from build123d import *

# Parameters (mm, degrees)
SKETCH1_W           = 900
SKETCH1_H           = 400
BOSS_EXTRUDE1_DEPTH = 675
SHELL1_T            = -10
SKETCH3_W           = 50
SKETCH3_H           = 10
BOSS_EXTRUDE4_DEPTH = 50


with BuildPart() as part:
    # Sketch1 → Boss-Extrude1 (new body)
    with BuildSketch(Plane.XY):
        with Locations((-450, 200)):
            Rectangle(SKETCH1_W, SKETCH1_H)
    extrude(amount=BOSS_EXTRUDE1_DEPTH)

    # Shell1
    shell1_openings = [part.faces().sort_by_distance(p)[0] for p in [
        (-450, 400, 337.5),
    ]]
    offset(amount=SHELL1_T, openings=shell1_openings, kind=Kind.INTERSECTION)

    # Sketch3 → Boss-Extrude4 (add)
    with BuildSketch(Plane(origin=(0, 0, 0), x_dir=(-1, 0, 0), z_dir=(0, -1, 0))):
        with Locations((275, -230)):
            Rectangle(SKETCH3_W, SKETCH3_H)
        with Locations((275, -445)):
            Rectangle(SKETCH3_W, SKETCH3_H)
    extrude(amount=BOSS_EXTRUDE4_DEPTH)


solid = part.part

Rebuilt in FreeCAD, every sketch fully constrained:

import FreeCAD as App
import Part
import Sketcher

V = App.Vector
Q = App.Units.Quantity


def faces_at(feature, points):
    """Names of the faces that lie closest to the given points."""
    faces = feature.Shape.Faces
    near = lambda p: min(range(len(faces)), key=lambda i: faces[i].distToShape(Part.Vertex(*p))[0])
    return sorted({f"Face{near(p) + 1}" for p in points})

doc = App.newDocument("Part")
body = doc.addObject("PartDesign::Body", "Body")

sketch1 = body.newObject("Sketcher::SketchObject", "Sketch")
sketch1.AttachmentSupport = (doc.getObject("XY_Plane"), [""])
sketch1.MapMode = "FlatFace"
sketch1.addGeometry(Part.LineSegment(V(-900, 400, 0), V(-900, 0, 0)), False)
sketch1.addGeometry(Part.LineSegment(V(-900, 0, 0), V(0, 0, 0)), False)
sketch1.addGeometry(Part.LineSegment(V(0, 0, 0), V(0, 400, 0)), False)
sketch1.addGeometry(Part.LineSegment(V(0, 400, 0), V(-900, 400, 0)), False)
sketch1.addConstraint(Sketcher.Constraint("Coincident", 0, 2, 1, 1))
sketch1.addConstraint(Sketcher.Constraint("Coincident", 1, 2, 2, 1))
sketch1.addConstraint(Sketcher.Constraint("Coincident", 2, 2, 3, 1))
sketch1.addConstraint(Sketcher.Constraint("Coincident", 3, 2, 0, 1))
sketch1.addConstraint(Sketcher.Constraint("Vertical", 0))
sketch1.addConstraint(Sketcher.Constraint("Horizontal", 1))
sketch1.addConstraint(Sketcher.Constraint("Vertical", 2))
sketch1.addConstraint(Sketcher.Constraint("Horizontal", 3))
sketch1.addConstraint(Sketcher.Constraint("Coincident", 1, 2, -1, 1))
sketch1.addConstraint(Sketcher.Constraint("DistanceX", 1, 1, 1, 2, Q("900 mm")))
sketch1.addConstraint(Sketcher.Constraint("DistanceY", 0, 2, 0, 1, Q("400 mm")))
pad1 = body.newObject("PartDesign::Pad", "Pad")
pad1.Profile = sketch1
pad1.Length = 675
doc.recompute()

thickness = body.newObject("PartDesign::Thickness", "Thickness")
thickness.Base = (pad1, faces_at(pad1, [(-450, 400, 337.5)]))
thickness.Value = 10
thickness.Reversed = True
thickness.Join = "Intersection"

sketch2 = body.newObject("Sketcher::SketchObject", "Sketch001")
sketch2.AttachmentSupport = (doc.getObject("XZ_Plane"), [""])
sketch2.MapMode = "FlatFace"
sketch2.addGeometry(Part.LineSegment(V(-250, 225, 0), V(-250, 235, 0)), False)
sketch2.addGeometry(Part.LineSegment(V(-250, 235, 0), V(-300, 235, 0)), False)
sketch2.addGeometry(Part.LineSegment(V(-300, 235, 0), V(-300, 225, 0)), False)
sketch2.addGeometry(Part.LineSegment(V(-300, 225, 0), V(-250, 225, 0)), False)
sketch2.addGeometry(Part.LineSegment(V(-250, 440, 0), V(-250, 450, 0)), False)
sketch2.addGeometry(Part.LineSegment(V(-250, 450, 0), V(-300, 450, 0)), False)
sketch2.addGeometry(Part.LineSegment(V(-300, 450, 0), V(-300, 440, 0)), False)
sketch2.addGeometry(Part.LineSegment(V(-300, 440, 0), V(-250, 440, 0)), False)
sketch2.addConstraint(Sketcher.Constraint("Coincident", 0, 2, 1, 1))
sketch2.addConstraint(Sketcher.Constraint("Coincident", 1, 2, 2, 1))
sketch2.addConstraint(Sketcher.Constraint("Coincident", 2, 2, 3, 1))
sketch2.addConstraint(Sketcher.Constraint("Coincident", 3, 2, 0, 1))
sketch2.addConstraint(Sketcher.Constraint("Coincident", 4, 2, 5, 1))
sketch2.addConstraint(Sketcher.Constraint("Coincident", 5, 2, 6, 1))
sketch2.addConstraint(Sketcher.Constraint("Coincident", 6, 2, 7, 1))
sketch2.addConstraint(Sketcher.Constraint("Coincident", 7, 2, 4, 1))
sketch2.addConstraint(Sketcher.Constraint("Vertical", 0))
sketch2.addConstraint(Sketcher.Constraint("Horizontal", 1))
sketch2.addConstraint(Sketcher.Constraint("Vertical", 2))
sketch2.addConstraint(Sketcher.Constraint("Horizontal", 3))
sketch2.addConstraint(Sketcher.Constraint("Vertical", 4))
sketch2.addConstraint(Sketcher.Constraint("Horizontal", 5))
sketch2.addConstraint(Sketcher.Constraint("Vertical", 6))
sketch2.addConstraint(Sketcher.Constraint("Horizontal", 7))
sketch2.addConstraint(Sketcher.Constraint("Vertical", 3, 2, 4, 2))
sketch2.addConstraint(Sketcher.Constraint("Vertical", 2, 2, 5, 2))
sketch2.addConstraint(Sketcher.Constraint("Equal", 2, 4))
sketch2.addConstraint(Sketcher.Constraint("DistanceX", 1, 2, 1, 1, Q("50 mm")))
sketch2.addConstraint(Sketcher.Constraint("DistanceY", 0, 1, 0, 2, Q("10 mm")))
sketch2.addConstraint(Sketcher.Constraint("DistanceX", 0, 2, -1, 1, Q("250 mm")))
sketch2.addConstraint(Sketcher.Constraint("DistanceY", -1, 1, 0, 2, Q("235 mm")))
sketch2.addConstraint(Sketcher.Constraint("DistanceY", -1, 1, 4, 2, Q("450 mm")))
pad2 = body.newObject("PartDesign::Pad", "Pad001")
pad2.Profile = sketch2
pad2.Length = 50

doc.recompute()
